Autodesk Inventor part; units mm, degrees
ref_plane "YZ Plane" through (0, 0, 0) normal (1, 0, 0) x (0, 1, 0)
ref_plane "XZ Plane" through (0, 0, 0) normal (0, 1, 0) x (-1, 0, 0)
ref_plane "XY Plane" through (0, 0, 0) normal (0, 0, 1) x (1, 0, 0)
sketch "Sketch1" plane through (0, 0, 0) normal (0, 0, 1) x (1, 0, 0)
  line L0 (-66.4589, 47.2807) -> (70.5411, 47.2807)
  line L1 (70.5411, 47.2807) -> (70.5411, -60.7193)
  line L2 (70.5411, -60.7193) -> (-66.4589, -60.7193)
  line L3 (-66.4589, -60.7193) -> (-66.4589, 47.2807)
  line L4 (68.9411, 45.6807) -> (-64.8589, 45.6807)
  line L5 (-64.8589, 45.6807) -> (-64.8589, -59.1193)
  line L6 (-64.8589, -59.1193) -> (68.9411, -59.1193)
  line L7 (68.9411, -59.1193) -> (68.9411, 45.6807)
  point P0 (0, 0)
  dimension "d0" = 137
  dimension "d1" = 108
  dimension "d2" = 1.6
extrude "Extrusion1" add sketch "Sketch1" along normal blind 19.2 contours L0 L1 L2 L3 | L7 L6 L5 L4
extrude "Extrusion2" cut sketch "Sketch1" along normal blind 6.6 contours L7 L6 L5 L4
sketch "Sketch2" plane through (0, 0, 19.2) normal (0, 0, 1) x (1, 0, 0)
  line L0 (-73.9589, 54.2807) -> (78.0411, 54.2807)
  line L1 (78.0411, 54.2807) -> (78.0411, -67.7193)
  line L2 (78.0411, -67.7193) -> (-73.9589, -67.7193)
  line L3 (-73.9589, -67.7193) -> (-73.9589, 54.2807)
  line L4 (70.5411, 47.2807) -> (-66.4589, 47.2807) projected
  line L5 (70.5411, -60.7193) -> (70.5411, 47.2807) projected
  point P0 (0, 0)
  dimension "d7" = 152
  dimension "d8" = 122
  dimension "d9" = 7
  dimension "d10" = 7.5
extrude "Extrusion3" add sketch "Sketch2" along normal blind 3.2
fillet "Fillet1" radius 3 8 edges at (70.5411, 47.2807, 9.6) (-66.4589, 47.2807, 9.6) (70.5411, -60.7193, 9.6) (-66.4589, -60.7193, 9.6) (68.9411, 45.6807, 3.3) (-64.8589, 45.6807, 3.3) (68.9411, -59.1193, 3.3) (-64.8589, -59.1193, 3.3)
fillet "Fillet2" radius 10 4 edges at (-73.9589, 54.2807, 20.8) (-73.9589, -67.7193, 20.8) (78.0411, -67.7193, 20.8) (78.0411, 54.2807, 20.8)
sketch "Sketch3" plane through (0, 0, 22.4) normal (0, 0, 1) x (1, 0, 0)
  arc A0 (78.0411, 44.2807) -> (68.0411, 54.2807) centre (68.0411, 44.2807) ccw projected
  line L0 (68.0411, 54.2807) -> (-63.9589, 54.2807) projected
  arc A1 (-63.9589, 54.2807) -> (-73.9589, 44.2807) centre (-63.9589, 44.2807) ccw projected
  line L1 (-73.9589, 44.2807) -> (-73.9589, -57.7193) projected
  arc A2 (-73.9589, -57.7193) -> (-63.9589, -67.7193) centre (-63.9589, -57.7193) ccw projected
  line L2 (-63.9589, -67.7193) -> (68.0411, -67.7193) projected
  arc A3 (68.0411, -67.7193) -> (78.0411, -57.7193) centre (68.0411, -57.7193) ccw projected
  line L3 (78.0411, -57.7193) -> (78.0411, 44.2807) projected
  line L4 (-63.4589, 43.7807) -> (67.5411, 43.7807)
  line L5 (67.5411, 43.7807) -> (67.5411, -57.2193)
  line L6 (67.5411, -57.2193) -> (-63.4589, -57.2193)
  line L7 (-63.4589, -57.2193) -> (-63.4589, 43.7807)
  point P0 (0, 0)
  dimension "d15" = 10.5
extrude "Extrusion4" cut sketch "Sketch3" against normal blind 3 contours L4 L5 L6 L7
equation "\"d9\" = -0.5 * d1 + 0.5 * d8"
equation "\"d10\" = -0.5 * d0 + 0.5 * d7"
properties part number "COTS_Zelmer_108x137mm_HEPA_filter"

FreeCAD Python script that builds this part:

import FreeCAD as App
import Part
import Sketcher
Q = App.Units.Quantity


def edges_at(feature, points):
    """Names of the edges that pass closest to the given points."""
    edges = feature.Shape.Edges
    near = lambda p: min(range(len(edges)), key=lambda i: edges[i].distToShape(Part.Vertex(*p))[0])
    return sorted({f"Edge{near(p) + 1}" for p in points})

doc = App.newDocument("Part")
body = doc.addObject("PartDesign::Body", "Body")

sketch1 = body.newObject("Sketcher::SketchObject", "Sketch")
sketch1.AttachmentSupport = (doc.getObject("XY_Plane"), [""])
sketch1.MapMode = "FlatFace"
sketch1.addGeometry([
    Part.LineSegment(App.Vector(71, 47, 0), App.Vector(-66, 47, 0)),
    Part.LineSegment(App.Vector(-66, 47, 0), App.Vector(-66, -61, 0)),
    Part.LineSegment(App.Vector(-66, -61, 0), App.Vector(71, -61, 0)),
    Part.LineSegment(App.Vector(71, -61, 0), App.Vector(71, 47, 0)),
], False)
sketch1.addConstraint([
    Sketcher.Constraint("Coincident", 0, 2, 1, 1),
    Sketcher.Constraint("Coincident", 1, 2, 2, 1),
    Sketcher.Constraint("Coincident", 2, 2, 3, 1),
    Sketcher.Constraint("Coincident", 3, 2, 0, 1),
    Sketcher.Constraint("Horizontal", 0),
    Sketcher.Constraint("Vertical", 1),
    Sketcher.Constraint("Horizontal", 2),
    Sketcher.Constraint("Vertical", 3),
    Sketcher.Constraint("DistanceX", 0, 2, 0, 1, Q("137 mm")),
    Sketcher.Constraint("DistanceY", 1, 2, 1, 1, Q("108 mm")),
    Sketcher.Constraint("DistanceX", 0, 2, -1, 1, Q("66.459 mm")),
    Sketcher.Constraint("DistanceY", -1, 1, 0, 2, Q("47.2807 mm")),
])
pad1 = body.newObject("PartDesign::Pad", "Pad")
pad1.Profile = sketch1
pad1.Length = 19.2

sketch2 = body.newObject("Sketcher::SketchObject", "Sketch001")
sketch2.AttachmentSupport = (doc.getObject("XY_Plane"), [""])
sketch2.MapMode = "FlatFace"
sketch2.addGeometry([
    Part.LineSegment(App.Vector(69, -59, 0), App.Vector(69, 46, 0)),
    Part.LineSegment(App.Vector(69, 46, 0), App.Vector(-65, 46, 0)),
    Part.LineSegment(App.Vector(-65, 46, 0), App.Vector(-65, -59, 0)),
    Part.LineSegment(App.Vector(-65, -59, 0), App.Vector(69, -59, 0)),
], False)
sketch2.addConstraint([
    Sketcher.Constraint("Coincident", 0, 2, 1, 1),
    Sketcher.Constraint("Coincident", 1, 2, 2, 1),
    Sketcher.Constraint("Coincident", 2, 2, 3, 1),
    Sketcher.Constraint("Coincident", 3, 2, 0, 1),
    Sketcher.Constraint("Vertical", 0),
    Sketcher.Constraint("Horizontal", 1),
    Sketcher.Constraint("Vertical", 2),
    Sketcher.Constraint("Horizontal", 3),
    Sketcher.Constraint("DistanceX", 1, 2, 1, 1, Q("133.8 mm")),
    Sketcher.Constraint("DistanceY", 0, 1, 0, 2, Q("104.8 mm")),
    Sketcher.Constraint("DistanceX", -1, 1, 0, 2, Q("68.941 mm")),
    Sketcher.Constraint("DistanceY", -1, 1, 0, 2, Q("45.6807 mm")),
])
pocket1 = body.newObject("PartDesign::Pocket", "Pocket")
pocket1.Profile = sketch2
pocket1.Length = 6.6
pocket1.Reversed = True

sketch3 = body.newObject("Sketcher::SketchObject", "Sketch002")
sketch3.AttachmentSupport = (doc.getObject("XY_Plane"), [""])
sketch3.MapMode = "FlatFace"
sketch3.AttachmentOffset = App.Placement(App.Vector(0, 0, 19.2), App.Rotation())
sketch3.addGeometry([
    Part.LineSegment(App.Vector(78, 54, 0), App.Vector(-74, 54, 0)),
    Part.LineSegment(App.Vector(-74, 54, 0), App.Vector(-74, -68, 0)),
    Part.LineSegment(App.Vector(-74, -68, 0), App.Vector(78, -68, 0)),
    Part.LineSegment(App.Vector(78, -68, 0), App.Vector(78, 54, 0)),
], False)
sketch3.addConstraint([
    Sketcher.Constraint("Coincident", 0, 2, 1, 1),
    Sketcher.Constraint("Coincident", 1, 2, 2, 1),
    Sketcher.Constraint("Coincident", 2, 2, 3, 1),
    Sketcher.Constraint("Coincident", 3, 2, 0, 1),
    Sketcher.Constraint("Horizontal", 0),
    Sketcher.Constraint("Vertical", 1),
    Sketcher.Constraint("Horizontal", 2),
    Sketcher.Constraint("Vertical", 3),
    Sketcher.Constraint("DistanceX", 0, 2, 0, 1, Q("152 mm")),
    Sketcher.Constraint("DistanceY", 1, 2, 1, 1, Q("122 mm")),
    Sketcher.Constraint("DistanceX", 0, 2, -1, 1, Q("73.959 mm")),
    Sketcher.Constraint("DistanceY", -1, 1, 0, 2, Q("54.2807 mm")),
])
pad2 = body.newObject("PartDesign::Pad", "Pad001")
pad2.Profile = sketch3
pad2.Length = 3.2
doc.recompute()

fillet = body.newObject("PartDesign::Fillet", "Fillet")
fillet.Base = (pad2, edges_at(pad2, [
    (70.541, 47.281, 9.6),
    (-66.459, 47.281, 9.6),
    (70.541, -60.719, 9.6),
    (-66.459, -60.719, 9.6),
    (68.941, 45.681, 3.3),
    (-64.859, 45.681, 3.3),
    (68.941, -59.119, 3.3),
    (-64.859, -59.119, 3.3),
]))
fillet.Radius = 3
doc.recompute()

fillet2 = body.newObject("PartDesign::Fillet", "Fillet001")
fillet2.Base = (fillet, edges_at(fillet, [
    (-73.959, 54.281, 20.8),
    (-73.959, -67.719, 20.8),
    (78.041, -67.719, 20.8),
    (78.041, 54.281, 20.8),
]))
fillet2.Radius = 10

sketch4 = body.newObject("Sketcher::SketchObject", "Sketch003")
sketch4.AttachmentSupport = (doc.getObject("XY_Plane"), [""])
sketch4.MapMode = "FlatFace"
sketch4.AttachmentOffset = App.Placement(App.Vector(0, 0, 22.4), App.Rotation())
sketch4.addGeometry([
    Part.LineSegment(App.Vector(68, 44, 0), App.Vector(-63, 44, 0)),
    Part.LineSegment(App.Vector(-63, 44, 0), App.Vector(-63, -57, 0)),
    Part.LineSegment(App.Vector(-63, -57, 0), App.Vector(68, -57, 0)),
    Part.LineSegment(App.Vector(68, -57, 0), App.Vector(68, 44, 0)),
], False)
sketch4.addConstraint([
    Sketcher.Constraint("Coincident", 0, 2, 1, 1),
    Sketcher.Constraint("Coincident", 1, 2, 2, 1),
    Sketcher.Constraint("Coincident", 2, 2, 3, 1),
    Sketcher.Constraint("Coincident", 3, 2, 0, 1),
    Sketcher.Constraint("Horizontal", 0),
    Sketcher.Constraint("Vertical", 1),
    Sketcher.Constraint("Horizontal", 2),
    Sketcher.Constraint("Vertical", 3),
    Sketcher.Constraint("DistanceX", 0, 2, 0, 1, Q("131 mm")),
    Sketcher.Constraint("DistanceY", 1, 2, 1, 1, Q("101 mm")),
    Sketcher.Constraint("DistanceX", 0, 2, -1, 1, Q("63.459 mm")),
    Sketcher.Constraint("DistanceY", -1, 1, 0, 2, Q("43.7807 mm")),
])
pocket2 = body.newObject("PartDesign::Pocket", "Pocket001")
pocket2.Profile = sketch4
pocket2.Length = 3

doc.recompute()
